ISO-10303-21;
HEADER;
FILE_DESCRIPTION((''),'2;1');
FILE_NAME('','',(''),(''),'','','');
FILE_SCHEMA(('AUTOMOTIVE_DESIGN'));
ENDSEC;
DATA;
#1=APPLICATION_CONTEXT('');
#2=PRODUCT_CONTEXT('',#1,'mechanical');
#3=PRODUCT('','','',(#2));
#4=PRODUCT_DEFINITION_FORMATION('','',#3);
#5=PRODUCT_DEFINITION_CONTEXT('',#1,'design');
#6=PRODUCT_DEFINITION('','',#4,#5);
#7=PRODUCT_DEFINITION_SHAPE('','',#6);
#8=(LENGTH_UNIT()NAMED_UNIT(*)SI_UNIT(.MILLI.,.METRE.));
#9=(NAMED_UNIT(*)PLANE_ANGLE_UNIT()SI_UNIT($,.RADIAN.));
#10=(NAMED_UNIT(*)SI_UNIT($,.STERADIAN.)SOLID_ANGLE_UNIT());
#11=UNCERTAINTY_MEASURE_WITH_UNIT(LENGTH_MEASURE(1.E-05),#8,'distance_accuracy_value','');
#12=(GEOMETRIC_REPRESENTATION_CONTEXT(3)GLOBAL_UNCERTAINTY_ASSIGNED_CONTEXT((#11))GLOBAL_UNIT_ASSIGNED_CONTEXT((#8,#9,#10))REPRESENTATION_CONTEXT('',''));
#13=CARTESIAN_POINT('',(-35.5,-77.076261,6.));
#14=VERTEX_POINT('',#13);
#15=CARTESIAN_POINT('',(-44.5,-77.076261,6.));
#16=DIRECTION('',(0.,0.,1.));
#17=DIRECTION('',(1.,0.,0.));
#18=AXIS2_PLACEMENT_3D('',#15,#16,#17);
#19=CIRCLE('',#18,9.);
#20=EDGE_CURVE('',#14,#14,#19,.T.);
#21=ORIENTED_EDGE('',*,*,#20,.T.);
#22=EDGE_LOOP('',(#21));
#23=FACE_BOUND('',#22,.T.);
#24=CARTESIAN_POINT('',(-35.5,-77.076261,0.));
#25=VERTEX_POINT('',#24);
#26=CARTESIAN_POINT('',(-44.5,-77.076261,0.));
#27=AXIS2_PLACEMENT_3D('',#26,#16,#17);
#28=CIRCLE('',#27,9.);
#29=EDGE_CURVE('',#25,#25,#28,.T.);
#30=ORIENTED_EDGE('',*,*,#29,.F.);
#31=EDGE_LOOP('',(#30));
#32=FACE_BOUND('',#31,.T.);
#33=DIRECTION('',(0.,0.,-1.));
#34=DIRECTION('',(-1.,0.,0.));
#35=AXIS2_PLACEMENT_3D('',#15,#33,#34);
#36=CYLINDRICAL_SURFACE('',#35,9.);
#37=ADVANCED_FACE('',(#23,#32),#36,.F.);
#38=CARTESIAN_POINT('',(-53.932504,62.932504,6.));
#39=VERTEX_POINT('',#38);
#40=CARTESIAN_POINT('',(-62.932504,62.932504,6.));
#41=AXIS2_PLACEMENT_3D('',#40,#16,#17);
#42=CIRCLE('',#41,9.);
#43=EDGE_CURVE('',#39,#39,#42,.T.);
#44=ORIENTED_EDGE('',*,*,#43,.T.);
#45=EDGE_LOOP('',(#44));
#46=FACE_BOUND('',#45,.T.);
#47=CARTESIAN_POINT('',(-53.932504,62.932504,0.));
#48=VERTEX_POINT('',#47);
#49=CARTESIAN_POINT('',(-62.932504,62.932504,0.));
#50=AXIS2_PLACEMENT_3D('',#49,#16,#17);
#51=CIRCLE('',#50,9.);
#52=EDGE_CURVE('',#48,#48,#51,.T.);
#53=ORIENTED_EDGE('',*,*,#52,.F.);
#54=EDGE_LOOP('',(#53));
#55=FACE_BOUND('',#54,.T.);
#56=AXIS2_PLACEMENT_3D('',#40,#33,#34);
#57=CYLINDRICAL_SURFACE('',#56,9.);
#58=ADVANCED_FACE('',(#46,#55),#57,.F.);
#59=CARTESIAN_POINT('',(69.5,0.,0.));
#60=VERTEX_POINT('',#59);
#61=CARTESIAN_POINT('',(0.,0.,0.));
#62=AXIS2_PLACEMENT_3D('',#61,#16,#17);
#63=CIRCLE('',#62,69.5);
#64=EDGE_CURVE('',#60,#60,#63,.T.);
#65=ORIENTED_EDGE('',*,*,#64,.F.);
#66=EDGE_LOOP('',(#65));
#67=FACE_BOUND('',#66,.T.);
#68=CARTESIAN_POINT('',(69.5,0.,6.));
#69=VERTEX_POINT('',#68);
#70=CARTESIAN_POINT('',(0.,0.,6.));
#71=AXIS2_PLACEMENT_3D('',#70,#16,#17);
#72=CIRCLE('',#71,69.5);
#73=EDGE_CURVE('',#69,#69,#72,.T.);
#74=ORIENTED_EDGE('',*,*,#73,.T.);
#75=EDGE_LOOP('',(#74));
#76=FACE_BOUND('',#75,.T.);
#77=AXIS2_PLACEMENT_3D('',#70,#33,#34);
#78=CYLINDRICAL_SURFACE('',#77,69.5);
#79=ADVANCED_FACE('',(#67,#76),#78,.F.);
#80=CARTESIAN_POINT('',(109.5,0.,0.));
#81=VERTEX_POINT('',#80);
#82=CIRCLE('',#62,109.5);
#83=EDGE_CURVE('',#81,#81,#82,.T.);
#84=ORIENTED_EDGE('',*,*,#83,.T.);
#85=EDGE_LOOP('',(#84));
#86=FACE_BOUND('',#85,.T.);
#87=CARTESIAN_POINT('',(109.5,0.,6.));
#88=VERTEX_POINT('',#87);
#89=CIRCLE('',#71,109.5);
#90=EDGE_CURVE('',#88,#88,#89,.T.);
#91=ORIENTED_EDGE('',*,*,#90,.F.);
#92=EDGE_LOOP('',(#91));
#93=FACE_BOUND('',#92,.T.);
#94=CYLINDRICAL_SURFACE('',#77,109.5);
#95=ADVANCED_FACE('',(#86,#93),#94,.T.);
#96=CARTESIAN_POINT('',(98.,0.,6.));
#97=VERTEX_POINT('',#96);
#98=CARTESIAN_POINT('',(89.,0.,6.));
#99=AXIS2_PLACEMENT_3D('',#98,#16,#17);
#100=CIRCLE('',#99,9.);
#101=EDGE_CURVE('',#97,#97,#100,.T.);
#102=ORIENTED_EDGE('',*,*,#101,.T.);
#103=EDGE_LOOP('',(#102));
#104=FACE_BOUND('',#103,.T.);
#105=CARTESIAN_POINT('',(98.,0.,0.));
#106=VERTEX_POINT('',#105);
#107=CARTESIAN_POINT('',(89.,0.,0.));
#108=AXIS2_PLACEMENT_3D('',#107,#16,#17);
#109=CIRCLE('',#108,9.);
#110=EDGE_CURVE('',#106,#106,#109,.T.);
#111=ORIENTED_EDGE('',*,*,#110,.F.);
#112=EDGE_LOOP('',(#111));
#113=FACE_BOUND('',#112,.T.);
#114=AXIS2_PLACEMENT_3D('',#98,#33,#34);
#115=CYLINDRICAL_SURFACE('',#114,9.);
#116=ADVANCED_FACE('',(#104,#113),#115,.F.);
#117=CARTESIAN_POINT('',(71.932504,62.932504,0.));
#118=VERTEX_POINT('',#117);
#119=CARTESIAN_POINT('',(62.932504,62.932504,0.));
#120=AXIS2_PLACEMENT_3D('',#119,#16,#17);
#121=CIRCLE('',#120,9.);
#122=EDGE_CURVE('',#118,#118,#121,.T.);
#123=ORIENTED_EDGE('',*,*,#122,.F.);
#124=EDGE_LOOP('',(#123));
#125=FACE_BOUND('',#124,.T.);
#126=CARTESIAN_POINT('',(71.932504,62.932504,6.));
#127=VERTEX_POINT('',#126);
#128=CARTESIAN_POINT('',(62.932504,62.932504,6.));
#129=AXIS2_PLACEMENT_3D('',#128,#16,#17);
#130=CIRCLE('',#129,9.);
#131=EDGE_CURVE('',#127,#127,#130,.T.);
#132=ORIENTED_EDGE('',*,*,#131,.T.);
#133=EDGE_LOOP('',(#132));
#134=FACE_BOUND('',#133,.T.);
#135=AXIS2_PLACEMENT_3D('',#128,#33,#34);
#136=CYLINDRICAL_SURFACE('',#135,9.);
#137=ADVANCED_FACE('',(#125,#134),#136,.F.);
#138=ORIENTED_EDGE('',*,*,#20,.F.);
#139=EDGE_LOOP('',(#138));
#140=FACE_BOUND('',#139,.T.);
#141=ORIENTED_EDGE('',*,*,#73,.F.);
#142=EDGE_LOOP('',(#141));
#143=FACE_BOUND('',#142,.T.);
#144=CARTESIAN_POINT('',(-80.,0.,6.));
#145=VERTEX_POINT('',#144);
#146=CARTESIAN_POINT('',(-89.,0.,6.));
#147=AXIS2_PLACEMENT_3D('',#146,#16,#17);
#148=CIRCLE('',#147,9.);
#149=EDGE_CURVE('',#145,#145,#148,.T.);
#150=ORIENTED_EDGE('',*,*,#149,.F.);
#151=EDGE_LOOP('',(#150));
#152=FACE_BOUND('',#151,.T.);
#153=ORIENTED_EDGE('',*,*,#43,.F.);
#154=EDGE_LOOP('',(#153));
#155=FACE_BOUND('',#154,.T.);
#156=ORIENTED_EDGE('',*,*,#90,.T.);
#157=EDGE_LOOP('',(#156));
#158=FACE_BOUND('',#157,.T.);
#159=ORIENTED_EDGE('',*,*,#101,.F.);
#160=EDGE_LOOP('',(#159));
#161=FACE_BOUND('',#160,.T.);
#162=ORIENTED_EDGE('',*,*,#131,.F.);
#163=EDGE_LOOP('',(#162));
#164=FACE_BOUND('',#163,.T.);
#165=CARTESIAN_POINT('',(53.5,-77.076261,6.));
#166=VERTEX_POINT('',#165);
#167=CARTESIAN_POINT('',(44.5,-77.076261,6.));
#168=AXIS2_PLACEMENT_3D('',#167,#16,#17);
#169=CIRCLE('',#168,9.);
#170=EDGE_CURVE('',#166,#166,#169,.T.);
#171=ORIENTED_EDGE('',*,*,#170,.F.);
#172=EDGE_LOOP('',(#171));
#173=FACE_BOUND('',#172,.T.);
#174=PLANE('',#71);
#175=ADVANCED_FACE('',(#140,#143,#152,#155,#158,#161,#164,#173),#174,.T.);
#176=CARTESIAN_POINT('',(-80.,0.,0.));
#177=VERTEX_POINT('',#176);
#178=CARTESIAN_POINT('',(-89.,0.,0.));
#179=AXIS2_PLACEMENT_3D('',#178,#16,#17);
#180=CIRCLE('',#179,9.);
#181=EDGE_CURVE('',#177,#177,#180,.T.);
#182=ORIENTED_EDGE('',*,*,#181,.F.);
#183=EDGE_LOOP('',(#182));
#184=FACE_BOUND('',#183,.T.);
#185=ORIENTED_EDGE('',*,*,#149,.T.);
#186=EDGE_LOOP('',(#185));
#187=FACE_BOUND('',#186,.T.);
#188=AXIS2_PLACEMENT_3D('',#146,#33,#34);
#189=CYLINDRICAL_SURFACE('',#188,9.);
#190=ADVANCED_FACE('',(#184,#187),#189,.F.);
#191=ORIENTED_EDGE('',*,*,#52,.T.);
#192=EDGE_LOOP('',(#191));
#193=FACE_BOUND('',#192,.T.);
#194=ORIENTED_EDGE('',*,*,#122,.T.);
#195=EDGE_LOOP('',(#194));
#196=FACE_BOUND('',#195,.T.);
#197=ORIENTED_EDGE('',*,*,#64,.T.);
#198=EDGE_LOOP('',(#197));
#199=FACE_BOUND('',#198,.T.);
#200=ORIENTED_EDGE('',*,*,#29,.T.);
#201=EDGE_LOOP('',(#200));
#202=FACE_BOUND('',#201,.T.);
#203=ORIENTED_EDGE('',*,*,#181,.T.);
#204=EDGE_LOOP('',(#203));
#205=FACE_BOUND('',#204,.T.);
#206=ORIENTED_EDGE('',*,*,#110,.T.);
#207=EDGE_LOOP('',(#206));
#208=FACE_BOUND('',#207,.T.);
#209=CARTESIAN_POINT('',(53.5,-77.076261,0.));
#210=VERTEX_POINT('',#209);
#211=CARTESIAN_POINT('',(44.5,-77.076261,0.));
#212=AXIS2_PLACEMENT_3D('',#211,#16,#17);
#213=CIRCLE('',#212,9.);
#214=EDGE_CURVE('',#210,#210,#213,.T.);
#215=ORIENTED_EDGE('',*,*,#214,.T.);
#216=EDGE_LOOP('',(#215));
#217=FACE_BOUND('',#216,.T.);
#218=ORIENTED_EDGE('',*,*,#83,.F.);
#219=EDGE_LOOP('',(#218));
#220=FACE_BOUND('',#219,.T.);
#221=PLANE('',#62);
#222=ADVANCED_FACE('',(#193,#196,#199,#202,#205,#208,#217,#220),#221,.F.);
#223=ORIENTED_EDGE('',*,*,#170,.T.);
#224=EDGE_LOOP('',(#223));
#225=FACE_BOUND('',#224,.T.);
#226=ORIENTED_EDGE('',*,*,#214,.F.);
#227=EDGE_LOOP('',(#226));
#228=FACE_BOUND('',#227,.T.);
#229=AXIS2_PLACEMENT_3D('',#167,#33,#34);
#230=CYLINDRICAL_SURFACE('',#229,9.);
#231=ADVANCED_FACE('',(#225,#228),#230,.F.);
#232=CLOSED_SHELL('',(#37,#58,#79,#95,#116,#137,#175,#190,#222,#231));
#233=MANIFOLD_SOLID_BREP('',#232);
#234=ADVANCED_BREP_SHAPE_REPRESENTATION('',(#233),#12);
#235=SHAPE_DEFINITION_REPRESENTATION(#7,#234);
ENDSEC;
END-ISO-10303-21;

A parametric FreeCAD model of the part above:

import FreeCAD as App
import Part
import Sketcher

doc = App.newDocument("Part")
body = doc.addObject("PartDesign::Body", "Body")

sketch1 = body.newObject("Sketcher::SketchObject", "Sketch")
sketch1.AttachmentSupport = (doc.getObject("XY_Plane"), [""])
sketch1.MapMode = "FlatFace"
sketch1.addGeometry([
    Part.Circle(App.Vector(0, 0, 0), App.Vector(0, 0, 1), 109.5),
    Part.Circle(App.Vector(-44.5, -77.076261, 0), App.Vector(0, 0, 1), 9),
    Part.Circle(App.Vector(44.5, -77.076261, 0), App.Vector(0, 0, 1), 9),
    Part.Circle(App.Vector(-89, 0, 0), App.Vector(0, 0, 1), 9),
    Part.Circle(App.Vector(0, 0, 0), App.Vector(0, 0, 1), 69.5),
    Part.Circle(App.Vector(-62.932504, 62.932504, 0), App.Vector(0, 0, 1), 9),
    Part.Circle(App.Vector(89, 0, 0), App.Vector(0, 0, 1), 9),
    Part.Circle(App.Vector(62.932504, 62.932504, 0), App.Vector(0, 0, 1), 9),
], False)
sketch1.addConstraint([
    Sketcher.Constraint("Coincident", 0, 3, -1, 1),
    Sketcher.Constraint("Coincident", 4, 3, -1, 1),
    Sketcher.Constraint("Equal", 1, 2),
    Sketcher.Constraint("Equal", 2, 3),
    Sketcher.Constraint("Equal", 3, 5),
    Sketcher.Constraint("Equal", 5, 6),
    Sketcher.Constraint("Equal", 6, 7),
    Sketcher.Constraint("Symmetric", 3, 3, 6, 3, -1, 1),
    Sketcher.Constraint("Symmetric", 1, 3, 2, 3, -2),
    Sketcher.Constraint("Symmetric", 5, 3, 7, 3, -2),
    Sketcher.Constraint("PointOnObject", 3, 3, -1),
    Sketcher.Constraint("Diameter", 0, 219.0),
    Sketcher.Constraint("Diameter", 1, 18.0),
    Sketcher.Constraint("Diameter", 4, 139.0),
    Sketcher.Constraint("DistanceX", 3, 3, -1, 1, 89.0),
    Sketcher.Constraint("DistanceX", 1, 3, 2, 3, 89.0),
    Sketcher.Constraint("DistanceY", 1, 3, -1, 1, 77.076261),
    Sketcher.Constraint("DistanceX", 5, 3, -1, 1, 62.932504),
    Sketcher.Constraint("DistanceY", -1, 1, 5, 3, 62.932504),
])
pad1 = body.newObject("PartDesign::Pad", "Pad")
pad1.Profile = sketch1
pad1.Length = 6

doc.recompute()
